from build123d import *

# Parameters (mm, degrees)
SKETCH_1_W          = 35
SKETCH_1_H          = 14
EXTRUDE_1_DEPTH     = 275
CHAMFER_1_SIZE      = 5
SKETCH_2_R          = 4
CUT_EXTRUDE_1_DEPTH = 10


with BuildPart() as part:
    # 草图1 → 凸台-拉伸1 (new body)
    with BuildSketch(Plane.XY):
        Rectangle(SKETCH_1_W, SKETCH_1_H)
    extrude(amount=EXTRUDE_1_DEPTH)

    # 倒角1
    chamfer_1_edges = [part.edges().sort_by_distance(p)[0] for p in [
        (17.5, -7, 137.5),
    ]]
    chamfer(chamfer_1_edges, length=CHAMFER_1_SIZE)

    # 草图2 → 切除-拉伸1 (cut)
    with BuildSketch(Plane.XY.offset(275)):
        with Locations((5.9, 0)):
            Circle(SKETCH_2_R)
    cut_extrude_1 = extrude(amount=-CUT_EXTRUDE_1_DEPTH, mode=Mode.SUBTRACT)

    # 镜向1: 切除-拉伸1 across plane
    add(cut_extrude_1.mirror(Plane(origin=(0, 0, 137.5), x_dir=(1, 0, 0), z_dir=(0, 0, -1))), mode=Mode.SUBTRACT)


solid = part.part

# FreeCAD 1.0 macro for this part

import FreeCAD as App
import Part
import Sketcher
from FreeCAD import Vector


def edges_at(feature, points):
    """Names of the edges that pass closest to the given points."""
    edges = feature.Shape.Edges
    near = lambda p: min(range(len(edges)), key=lambda i: edges[i].distToShape(Part.Vertex(*p))[0])
    return sorted({f"Edge{near(p) + 1}" for p in points})


def add_polygon(sketch, points):
    """Adds a closed chain of lines whose ends are joined by coincident constraints."""
    first, n = sketch.GeometryCount, len(points)
    for a, b in zip(points, points[1:] + points[:1]):
        sketch.addGeometry(Part.LineSegment(App.Vector(*a, 0), App.Vector(*b, 0)), False)
    for i in range(n):
        sketch.addConstraint(Sketcher.Constraint("Coincident", first + i, 2, first + (i + 1) % n, 1))

doc = App.newDocument("Part")
body = doc.addObject("PartDesign::Body", "Body")

sketch1 = body.newObject("Sketcher::SketchObject", "Sketch")
sketch1.AttachmentSupport = (doc.getObject("XY_Plane"), [""])
sketch1.MapMode = "FlatFace"
add_polygon(sketch1, [(-18, 7), (-18, -7), (18, -7), (18, 7)])
sketch1.addConstraint([
    Sketcher.Constraint("Vertical", 0),
    Sketcher.Constraint("Horizontal", 1),
    Sketcher.Constraint("Vertical", 2),
    Sketcher.Constraint("Horizontal", 3),
    Sketcher.Constraint("Symmetric", 0, 2, 2, 2, -1, 1),
    Sketcher.Constraint("DistanceX", 1, 1, 1, 2, 35.0),
    Sketcher.Constraint("DistanceY", 0, 2, 0, 1, 14.0),
])
pad1 = body.newObject("PartDesign::Pad", "Pad")
pad1.Profile = sketch1
pad1.Length = 275
doc.recompute()

chamfer = body.newObject("PartDesign::Chamfer", "Chamfer")
chamfer.Base = (pad1, edges_at(pad1, [(17.5, -7, 137.5)]))
chamfer.Size = 5

sketch2 = body.newObject("Sketcher::SketchObject", "Sketch001")
sketch2.AttachmentSupport = (doc.getObject("XY_Plane"), [""])
sketch2.MapMode = "FlatFace"
sketch2.AttachmentOffset = App.Placement(Vector(0, 0, 275), App.Rotation())
sketch2.addGeometry(Part.Circle(Vector(5.9, 0, 0), Vector(0, 0, 1), 4), False)
sketch2.addConstraint([
    Sketcher.Constraint("PointOnObject", 0, 3, -1),
    Sketcher.Constraint("Diameter", 0, 8.0),
    Sketcher.Constraint("DistanceX", -1, 1, 0, 3, 5.9),
])
pocket1 = body.newObject("PartDesign::Pocket", "Pocket")
pocket1.Profile = sketch2
pocket1.Length = 10
doc.recompute()

datumplane = body.newObject("PartDesign::Plane", "DatumPlane")
datumplane.AttachmentSupport = (doc.getObject("XY_Plane"), [""])
datumplane.MapMode = "FlatFace"
datumplane.AttachmentOffset = App.Placement(Vector(0, 0, 137.5), App.Rotation())
mirrored = body.newObject("PartDesign::Mirrored", "Mirrored")
mirrored.Originals = [pocket1]
mirrored.MirrorPlane = (datumplane, [""])
body.Tip = mirrored

doc.recompute()
